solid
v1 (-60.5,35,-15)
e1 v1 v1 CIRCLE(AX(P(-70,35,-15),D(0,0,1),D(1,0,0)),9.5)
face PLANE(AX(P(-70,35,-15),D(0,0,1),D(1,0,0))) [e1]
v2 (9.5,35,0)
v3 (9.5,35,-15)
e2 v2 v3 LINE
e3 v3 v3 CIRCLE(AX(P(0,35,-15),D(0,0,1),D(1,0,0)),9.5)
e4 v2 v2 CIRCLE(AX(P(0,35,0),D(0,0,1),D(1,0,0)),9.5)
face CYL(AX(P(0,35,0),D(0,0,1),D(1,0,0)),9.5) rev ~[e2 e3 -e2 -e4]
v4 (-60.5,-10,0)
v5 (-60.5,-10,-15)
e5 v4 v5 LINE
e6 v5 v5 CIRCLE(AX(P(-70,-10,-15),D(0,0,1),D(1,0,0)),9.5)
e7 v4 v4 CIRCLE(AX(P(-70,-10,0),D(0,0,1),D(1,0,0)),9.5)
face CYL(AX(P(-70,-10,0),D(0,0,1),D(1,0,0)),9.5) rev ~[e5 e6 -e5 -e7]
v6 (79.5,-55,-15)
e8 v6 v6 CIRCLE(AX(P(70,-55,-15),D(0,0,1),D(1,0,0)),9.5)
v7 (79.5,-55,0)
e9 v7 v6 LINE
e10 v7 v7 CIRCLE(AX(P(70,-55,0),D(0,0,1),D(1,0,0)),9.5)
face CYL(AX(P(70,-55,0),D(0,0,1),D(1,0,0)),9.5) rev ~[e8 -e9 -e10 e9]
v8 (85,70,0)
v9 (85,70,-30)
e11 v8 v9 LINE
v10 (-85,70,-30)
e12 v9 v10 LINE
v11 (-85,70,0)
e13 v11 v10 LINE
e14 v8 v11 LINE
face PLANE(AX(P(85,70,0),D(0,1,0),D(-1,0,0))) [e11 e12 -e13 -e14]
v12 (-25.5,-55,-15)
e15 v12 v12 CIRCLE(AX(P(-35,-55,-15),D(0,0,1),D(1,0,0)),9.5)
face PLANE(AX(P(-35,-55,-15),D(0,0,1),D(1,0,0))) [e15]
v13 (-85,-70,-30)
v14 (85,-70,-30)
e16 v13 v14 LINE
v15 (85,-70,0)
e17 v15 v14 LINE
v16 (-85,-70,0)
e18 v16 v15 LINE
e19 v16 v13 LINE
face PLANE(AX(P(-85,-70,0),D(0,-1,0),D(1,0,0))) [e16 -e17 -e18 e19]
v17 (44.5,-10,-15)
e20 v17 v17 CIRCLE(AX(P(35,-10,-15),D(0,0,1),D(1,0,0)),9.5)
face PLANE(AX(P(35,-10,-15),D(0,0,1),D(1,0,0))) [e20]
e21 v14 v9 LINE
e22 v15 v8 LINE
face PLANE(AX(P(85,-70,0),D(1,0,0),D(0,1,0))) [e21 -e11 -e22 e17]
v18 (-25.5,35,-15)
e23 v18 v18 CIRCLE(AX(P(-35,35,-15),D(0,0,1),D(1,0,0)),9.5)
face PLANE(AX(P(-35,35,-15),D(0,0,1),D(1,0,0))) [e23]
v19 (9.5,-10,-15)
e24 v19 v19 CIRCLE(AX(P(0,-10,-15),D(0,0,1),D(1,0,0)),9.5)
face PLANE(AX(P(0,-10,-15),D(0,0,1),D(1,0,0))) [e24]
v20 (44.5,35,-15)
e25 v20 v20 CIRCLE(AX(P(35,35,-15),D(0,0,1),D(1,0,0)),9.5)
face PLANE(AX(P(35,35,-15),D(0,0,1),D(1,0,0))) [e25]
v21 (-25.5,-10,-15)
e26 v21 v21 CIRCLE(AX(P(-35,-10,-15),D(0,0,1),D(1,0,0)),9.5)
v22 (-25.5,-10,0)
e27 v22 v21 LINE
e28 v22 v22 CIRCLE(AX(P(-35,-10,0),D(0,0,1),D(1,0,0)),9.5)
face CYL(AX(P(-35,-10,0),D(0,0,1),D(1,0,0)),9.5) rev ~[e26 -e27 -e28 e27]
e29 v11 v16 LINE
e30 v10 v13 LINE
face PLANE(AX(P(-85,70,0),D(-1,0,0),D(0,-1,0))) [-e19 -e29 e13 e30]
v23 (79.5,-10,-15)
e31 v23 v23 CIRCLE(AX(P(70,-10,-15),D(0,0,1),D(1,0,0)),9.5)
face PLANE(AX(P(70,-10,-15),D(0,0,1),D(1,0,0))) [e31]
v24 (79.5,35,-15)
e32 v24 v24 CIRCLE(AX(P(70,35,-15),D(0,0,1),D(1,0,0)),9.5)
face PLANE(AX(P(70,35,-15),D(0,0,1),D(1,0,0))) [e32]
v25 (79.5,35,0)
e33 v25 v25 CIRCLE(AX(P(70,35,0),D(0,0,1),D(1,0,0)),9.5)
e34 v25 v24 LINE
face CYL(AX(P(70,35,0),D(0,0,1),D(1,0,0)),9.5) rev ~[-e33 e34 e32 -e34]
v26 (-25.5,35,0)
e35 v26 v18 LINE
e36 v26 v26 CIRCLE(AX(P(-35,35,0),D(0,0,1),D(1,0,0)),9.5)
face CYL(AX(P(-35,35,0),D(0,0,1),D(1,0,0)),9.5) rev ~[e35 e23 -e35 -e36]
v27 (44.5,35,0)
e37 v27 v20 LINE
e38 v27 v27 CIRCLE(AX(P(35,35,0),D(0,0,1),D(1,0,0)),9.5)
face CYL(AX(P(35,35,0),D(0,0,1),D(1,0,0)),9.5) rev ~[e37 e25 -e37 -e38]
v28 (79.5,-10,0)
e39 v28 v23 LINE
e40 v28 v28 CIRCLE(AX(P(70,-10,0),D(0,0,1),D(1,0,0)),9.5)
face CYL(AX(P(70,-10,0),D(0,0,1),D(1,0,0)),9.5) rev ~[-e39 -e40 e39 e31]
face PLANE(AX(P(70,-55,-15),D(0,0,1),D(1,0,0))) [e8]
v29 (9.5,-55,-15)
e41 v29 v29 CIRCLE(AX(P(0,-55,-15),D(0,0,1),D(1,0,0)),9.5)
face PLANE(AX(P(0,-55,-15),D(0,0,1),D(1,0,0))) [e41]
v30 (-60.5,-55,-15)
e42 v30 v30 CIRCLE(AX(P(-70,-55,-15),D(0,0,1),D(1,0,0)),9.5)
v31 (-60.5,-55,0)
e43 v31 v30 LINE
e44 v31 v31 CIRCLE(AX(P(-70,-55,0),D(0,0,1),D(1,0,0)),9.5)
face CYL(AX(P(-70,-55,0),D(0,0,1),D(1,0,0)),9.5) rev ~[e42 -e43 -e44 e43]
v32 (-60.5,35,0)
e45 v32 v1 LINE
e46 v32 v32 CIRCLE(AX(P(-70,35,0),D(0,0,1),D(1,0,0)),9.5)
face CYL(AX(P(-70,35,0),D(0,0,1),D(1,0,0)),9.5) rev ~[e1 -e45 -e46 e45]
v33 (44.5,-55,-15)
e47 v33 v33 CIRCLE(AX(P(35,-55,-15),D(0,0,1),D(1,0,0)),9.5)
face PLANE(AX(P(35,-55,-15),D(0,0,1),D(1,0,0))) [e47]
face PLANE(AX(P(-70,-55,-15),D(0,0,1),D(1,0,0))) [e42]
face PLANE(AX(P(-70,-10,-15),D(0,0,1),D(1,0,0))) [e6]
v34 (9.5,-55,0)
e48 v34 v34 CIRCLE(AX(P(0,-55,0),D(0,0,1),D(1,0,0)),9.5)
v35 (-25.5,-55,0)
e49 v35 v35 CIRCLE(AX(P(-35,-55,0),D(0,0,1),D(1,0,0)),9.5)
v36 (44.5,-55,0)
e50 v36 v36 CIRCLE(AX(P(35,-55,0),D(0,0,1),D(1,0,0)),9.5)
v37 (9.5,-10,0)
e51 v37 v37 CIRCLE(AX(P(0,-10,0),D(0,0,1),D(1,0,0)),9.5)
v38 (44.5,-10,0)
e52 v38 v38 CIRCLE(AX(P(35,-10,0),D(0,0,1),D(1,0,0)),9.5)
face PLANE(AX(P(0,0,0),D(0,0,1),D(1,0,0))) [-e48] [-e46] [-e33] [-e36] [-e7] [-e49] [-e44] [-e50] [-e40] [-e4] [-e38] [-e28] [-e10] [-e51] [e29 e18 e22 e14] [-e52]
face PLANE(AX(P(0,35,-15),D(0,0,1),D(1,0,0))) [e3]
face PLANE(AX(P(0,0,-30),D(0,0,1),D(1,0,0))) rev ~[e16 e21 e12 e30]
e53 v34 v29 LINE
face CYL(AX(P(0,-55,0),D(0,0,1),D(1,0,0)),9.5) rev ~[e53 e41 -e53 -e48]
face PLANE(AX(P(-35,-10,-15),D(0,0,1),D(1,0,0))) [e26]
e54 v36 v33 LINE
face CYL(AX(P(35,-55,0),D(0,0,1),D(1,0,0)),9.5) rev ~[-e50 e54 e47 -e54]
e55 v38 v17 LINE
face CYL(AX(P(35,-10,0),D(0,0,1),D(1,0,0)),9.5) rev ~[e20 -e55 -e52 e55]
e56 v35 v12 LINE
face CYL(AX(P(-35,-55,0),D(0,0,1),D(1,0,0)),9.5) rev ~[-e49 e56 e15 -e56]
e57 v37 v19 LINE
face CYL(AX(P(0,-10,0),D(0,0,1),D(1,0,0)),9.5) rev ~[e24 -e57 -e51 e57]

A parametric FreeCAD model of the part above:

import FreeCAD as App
import Part
import Sketcher
from FreeCAD import Vector


def add_polygon(sketch, points):
    """Adds a closed chain of lines whose ends are joined by coincident constraints."""
    first, n = sketch.GeometryCount, len(points)
    for a, b in zip(points, points[1:] + points[:1]):
        sketch.addGeometry(Part.LineSegment(App.Vector(*a, 0), App.Vector(*b, 0)), False)
    for i in range(n):
        sketch.addConstraint(Sketcher.Constraint("Coincident", first + i, 2, first + (i + 1) % n, 1))

doc = App.newDocument("Part")
body = doc.addObject("PartDesign::Body", "Body")

# Sketch on XY plane
sketch1 = doc.addObject("Sketcher::SketchObject", "Sketch")
body.addObject(sketch1)
sketch1.AttachmentSupport = (doc.XY_Plane, [""])
sketch1.MapMode = "FlatFace"
add_polygon(sketch1, [(-85, 70), (-85, -70), (85, -70), (85, 70)])  # lines 0-3
sketch1.addConstraint(Sketcher.Constraint("Vertical", 0))
sketch1.addConstraint(Sketcher.Constraint("Horizontal", 1))
sketch1.addConstraint(Sketcher.Constraint("Vertical", 2))
sketch1.addConstraint(Sketcher.Constraint("Horizontal", 3))
sketch1.addConstraint(Sketcher.Constraint("Symmetric", 0, 2, 2, 2, -1, 1))
sketch1.addConstraint(Sketcher.Constraint("DistanceX", 1, 1, 1, 2, 170.0))
sketch1.addConstraint(Sketcher.Constraint("DistanceY", 0, 2, 0, 1, 140.0))
pad1 = doc.addObject("PartDesign::Pad", "Pad")
body.addObject(pad1)
pad1.Profile = sketch1
pad1.Length = 30
pad1.Reversed = True

# Sketch on XY plane
sketch2 = doc.addObject("Sketcher::SketchObject", "Sketch001")
body.addObject(sketch2)
sketch2.AttachmentSupport = (doc.XY_Plane, [""])
sketch2.MapMode = "FlatFace"
sketch2.addGeometry(Part.Circle(Vector(-70, -55, 0), Vector(0, 0, 1), 10), False)
sketch2.addGeometry(Part.Circle(Vector(-35, -55, 0), Vector(0, 0, 1), 10), False)
sketch2.addGeometry(Part.Circle(Vector(0, -55, 0), Vector(0, 0, 1), 10), False)
sketch2.addGeometry(Part.Circle(Vector(35, -55, 0), Vector(0, 0, 1), 10), False)
sketch2.addGeometry(Part.Circle(Vector(70, -55, 0), Vector(0, 0, 1), 10), False)
sketch2.addGeometry(Part.Circle(Vector(70, -10, 0), Vector(0, 0, 1), 10), False)
sketch2.addGeometry(Part.Circle(Vector(70, 35, 0), Vector(0, 0, 1), 10), False)
sketch2.addGeometry(Part.Circle(Vector(35, -10, 0), Vector(0, 0, 1), 10), False)
sketch2.addGeometry(Part.Circle(Vector(0, -10, 0), Vector(0, 0, 1), 10), False)
sketch2.addGeometry(Part.Circle(Vector(-35, -10, 0), Vector(0, 0, 1), 10), False)
sketch2.addGeometry(Part.Circle(Vector(-70, -10, 0), Vector(0, 0, 1), 10), False)
sketch2.addGeometry(Part.Circle(Vector(35, 35, 0), Vector(0, 0, 1), 10), False)
sketch2.addGeometry(Part.Circle(Vector(0, 35, 0), Vector(0, 0, 1), 10), False)
sketch2.addGeometry(Part.Circle(Vector(-35, 35, 0), Vector(0, 0, 1), 10), False)
sketch2.addGeometry(Part.Circle(Vector(-70, 35, 0), Vector(0, 0, 1), 10), False)
sketch2.addConstraint(Sketcher.Constraint("Equal", 0, 1))
sketch2.addConstraint(Sketcher.Constraint("Equal", 1, 2))
sketch2.addConstraint(Sketcher.Constraint("Equal", 2, 3))
sketch2.addConstraint(Sketcher.Constraint("Equal", 3, 4))
sketch2.addConstraint(Sketcher.Constraint("Equal", 4, 5))
sketch2.addConstraint(Sketcher.Constraint("Equal", 5, 6))
sketch2.addConstraint(Sketcher.Constraint("Equal", 6, 7))
sketch2.addConstraint(Sketcher.Constraint("Equal", 7, 8))
sketch2.addConstraint(Sketcher.Constraint("Equal", 8, 9))
sketch2.addConstraint(Sketcher.Constraint("Equal", 9, 10))
sketch2.addConstraint(Sketcher.Constraint("Equal", 10, 11))
sketch2.addConstraint(Sketcher.Constraint("Equal", 11, 12))
sketch2.addConstraint(Sketcher.Constraint("Equal", 12, 13))
sketch2.addConstraint(Sketcher.Constraint("Equal", 13, 14))
sketch2.addConstraint(Sketcher.Constraint("Symmetric", 1, 3, 3, 3, -2))
sketch2.addConstraint(Sketcher.Constraint("Symmetric", 0, 3, 4, 3, -2))
sketch2.addConstraint(Sketcher.Constraint("Symmetric", 7, 3, 9, 3, -2))
sketch2.addConstraint(Sketcher.Constraint("Symmetric", 5, 3, 10, 3, -2))
sketch2.addConstraint(Sketcher.Constraint("Symmetric", 11, 3, 13, 3, -2))
sketch2.addConstraint(Sketcher.Constraint("Symmetric", 6, 3, 14, 3, -2))
sketch2.addConstraint(Sketcher.Constraint("PointOnObject", 2, 3, -2))
sketch2.addConstraint(Sketcher.Constraint("PointOnObject", 8, 3, -2))
sketch2.addConstraint(Sketcher.Constraint("PointOnObject", 12, 3, -2))
sketch2.addConstraint(Sketcher.Constraint("Horizontal", 0, 3, 1, 3))
sketch2.addConstraint(Sketcher.Constraint("Horizontal", 1, 3, 2, 3))
sketch2.addConstraint(Sketcher.Constraint("Horizontal", 5, 3, 7, 3))
sketch2.addConstraint(Sketcher.Constraint("Horizontal", 7, 3, 8, 3))
sketch2.addConstraint(Sketcher.Constraint("Horizontal", 6, 3, 11, 3))
sketch2.addConstraint(Sketcher.Constraint("Horizontal", 11, 3, 12, 3))
sketch2.addConstraint(Sketcher.Constraint("Vertical", 4, 3, 5, 3))
sketch2.addConstraint(Sketcher.Constraint("Vertical", 5, 3, 6, 3))
sketch2.addConstraint(Sketcher.Constraint("Vertical", 3, 3, 7, 3))
sketch2.addConstraint(Sketcher.Constraint("Vertical", 7, 3, 11, 3))
sketch2.addConstraint(Sketcher.Constraint("Diameter", 0, 19.0))
sketch2.addConstraint(Sketcher.Constraint("DistanceX", 0, 3, -1, 1, 70.0))
sketch2.addConstraint(Sketcher.Constraint("DistanceY", 0, 3, -1, 1, 55.0))
sketch2.addConstraint(Sketcher.Constraint("DistanceX", 1, 3, -1, 1, 35.0))
sketch2.addConstraint(Sketcher.Constraint("DistanceY", 5, 3, -1, 1, 10.0))
sketch2.addConstraint(Sketcher.Constraint("DistanceY", -1, 1, 6, 3, 35.0))
pocket1 = doc.addObject("PartDesign::Pocket", "Pocket")
body.addObject(pocket1)
pocket1.Profile = sketch2
pocket1.Length = 15

doc.recompute()
